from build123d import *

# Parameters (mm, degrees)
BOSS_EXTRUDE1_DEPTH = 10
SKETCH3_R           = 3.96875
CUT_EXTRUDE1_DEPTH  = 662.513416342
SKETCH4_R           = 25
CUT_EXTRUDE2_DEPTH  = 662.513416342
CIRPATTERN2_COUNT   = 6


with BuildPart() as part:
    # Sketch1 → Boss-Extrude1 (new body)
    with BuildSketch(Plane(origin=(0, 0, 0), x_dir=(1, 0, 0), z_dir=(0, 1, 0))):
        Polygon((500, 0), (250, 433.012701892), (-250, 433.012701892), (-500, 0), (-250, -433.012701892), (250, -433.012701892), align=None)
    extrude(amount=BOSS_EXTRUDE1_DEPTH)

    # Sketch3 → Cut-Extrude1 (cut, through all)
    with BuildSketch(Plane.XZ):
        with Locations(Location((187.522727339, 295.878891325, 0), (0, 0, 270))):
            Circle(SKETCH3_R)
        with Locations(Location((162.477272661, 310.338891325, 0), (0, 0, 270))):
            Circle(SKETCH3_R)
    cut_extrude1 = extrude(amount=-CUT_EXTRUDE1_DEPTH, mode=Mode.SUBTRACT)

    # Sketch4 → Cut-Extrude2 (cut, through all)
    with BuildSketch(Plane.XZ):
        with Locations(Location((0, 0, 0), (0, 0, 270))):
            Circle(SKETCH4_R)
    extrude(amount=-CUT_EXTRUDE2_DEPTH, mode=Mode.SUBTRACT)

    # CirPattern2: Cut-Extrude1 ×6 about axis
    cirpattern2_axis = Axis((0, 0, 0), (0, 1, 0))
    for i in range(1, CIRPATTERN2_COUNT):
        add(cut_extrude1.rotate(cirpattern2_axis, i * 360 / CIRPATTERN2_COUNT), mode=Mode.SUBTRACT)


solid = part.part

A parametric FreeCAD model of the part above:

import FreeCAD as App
import Part
import Sketcher

V = App.Vector
Q = App.Units.Quantity

doc = App.newDocument("Part")
body = doc.addObject("PartDesign::Body", "Body")

# Sketch on XZ plane
sketch1 = body.newObject("Sketcher::SketchObject", "Sketch")
sketch1.AttachmentSupport = (doc.getObject("XZ_Plane"), [""])
sketch1.MapMode = "FlatFace"
sketch1.addGeometry([
    Part.LineSegment(V(500, 0, 0), V(250, -433, 0)),  # 0
    Part.LineSegment(V(250, -433, 0), V(-250, -433, 0)),  # 1
    Part.LineSegment(V(-250, -433, 0), V(-500, 0, 0)),  # 2
    Part.LineSegment(V(-500, 0, 0), V(-250, 433, 0)),  # 3
    Part.LineSegment(V(-250, 433, 0), V(250, 433, 0)),  # 4
    Part.LineSegment(V(250, 433, 0), V(500, 0, 0)),  # 5
], False)
sketch1.addConstraint([
    Sketcher.Constraint("Coincident", 0, 2, 1, 1),
    Sketcher.Constraint("Coincident", 1, 2, 2, 1),
    Sketcher.Constraint("Coincident", 2, 2, 3, 1),
    Sketcher.Constraint("Coincident", 3, 2, 4, 1),
    Sketcher.Constraint("Coincident", 4, 2, 5, 1),
    Sketcher.Constraint("Coincident", 5, 2, 0, 1),
    Sketcher.Constraint("Horizontal", 1),
    Sketcher.Constraint("Horizontal", 4),
    Sketcher.Constraint("Symmetric", 0, 2, 3, 2, -1, 1),
    Sketcher.Constraint("Symmetric", 2, 2, 5, 2, -1, 1),
    Sketcher.Constraint("PointOnObject", 2, 2, -1),
    Sketcher.Constraint("Parallel", 2, 5),
    Sketcher.Constraint("Vertical", 1, 2, 3, 2),
    Sketcher.Constraint("DistanceX", 1, 2, 1, 1, Q("500 mm")),
    Sketcher.Constraint("Angle", 0, Q("-120 deg")),
    Sketcher.Constraint("Distance", 0, Q("500 mm")),
])
pad1 = body.newObject("PartDesign::Pad", "Pad")
pad1.Profile = sketch1
pad1.Length = 10
pad1.Reversed = True

# Sketch on XZ plane
sketch2 = body.newObject("Sketcher::SketchObject", "Sketch001")
sketch2.AttachmentSupport = (doc.getObject("XZ_Plane"), [""])
sketch2.MapMode = "FlatFace"
sketch2.addGeometry([
    Part.Circle(V(187.5, 295.9, 0), V(0, 0, 1), 4),
    Part.Circle(V(162.5, 310.3, 0), V(0, 0, 1), 4),
], False)
sketch2.addConstraint([
    Sketcher.Constraint("Equal", 0, 1),
    Sketcher.Constraint("Diameter", 0, Q("7.9375 mm")),
    Sketcher.Constraint("DistanceY", 0, 3, 1, 3, Q("14.46 mm")),
    Sketcher.Constraint("DistanceY", -1, 1, 0, 3, Q("295.878891 mm")),
    Sketcher.Constraint("DistanceX", -1, 1, 0, 3, Q("187.522727 mm")),
    Sketcher.Constraint("DistanceX", -1, 1, 1, 3, Q("162.477273 mm")),
])
pocket1 = body.newObject("PartDesign::Pocket", "Pocket")
pocket1.Profile = sketch2
pocket1.Type = "ThroughAll"

# Sketch on XZ plane
sketch3 = body.newObject("Sketcher::SketchObject", "Sketch002")
sketch3.AttachmentSupport = (doc.getObject("XZ_Plane"), [""])
sketch3.MapMode = "FlatFace"
sketch3.addGeometry(Part.Circle(V(0, 0, 0), V(0, 0, 1), 25), False)
sketch3.addConstraint([
    Sketcher.Constraint("Coincident", 0, 3, -1, 1),
    Sketcher.Constraint("Diameter", 0, Q("50 mm")),
])
pocket2 = body.newObject("PartDesign::Pocket", "Pocket001")
pocket2.Profile = sketch3
pocket2.Type = "ThroughAll"
doc.recompute()

polarpattern = body.newObject("PartDesign::PolarPattern", "PolarPattern")
polarpattern.Originals = [pocket1]
polarpattern.Axis = (doc.getObject("Y_Axis"), [""])
polarpattern.Angle = 360
polarpattern.Occurrences = 6
body.Tip = polarpattern

doc.recompute()
